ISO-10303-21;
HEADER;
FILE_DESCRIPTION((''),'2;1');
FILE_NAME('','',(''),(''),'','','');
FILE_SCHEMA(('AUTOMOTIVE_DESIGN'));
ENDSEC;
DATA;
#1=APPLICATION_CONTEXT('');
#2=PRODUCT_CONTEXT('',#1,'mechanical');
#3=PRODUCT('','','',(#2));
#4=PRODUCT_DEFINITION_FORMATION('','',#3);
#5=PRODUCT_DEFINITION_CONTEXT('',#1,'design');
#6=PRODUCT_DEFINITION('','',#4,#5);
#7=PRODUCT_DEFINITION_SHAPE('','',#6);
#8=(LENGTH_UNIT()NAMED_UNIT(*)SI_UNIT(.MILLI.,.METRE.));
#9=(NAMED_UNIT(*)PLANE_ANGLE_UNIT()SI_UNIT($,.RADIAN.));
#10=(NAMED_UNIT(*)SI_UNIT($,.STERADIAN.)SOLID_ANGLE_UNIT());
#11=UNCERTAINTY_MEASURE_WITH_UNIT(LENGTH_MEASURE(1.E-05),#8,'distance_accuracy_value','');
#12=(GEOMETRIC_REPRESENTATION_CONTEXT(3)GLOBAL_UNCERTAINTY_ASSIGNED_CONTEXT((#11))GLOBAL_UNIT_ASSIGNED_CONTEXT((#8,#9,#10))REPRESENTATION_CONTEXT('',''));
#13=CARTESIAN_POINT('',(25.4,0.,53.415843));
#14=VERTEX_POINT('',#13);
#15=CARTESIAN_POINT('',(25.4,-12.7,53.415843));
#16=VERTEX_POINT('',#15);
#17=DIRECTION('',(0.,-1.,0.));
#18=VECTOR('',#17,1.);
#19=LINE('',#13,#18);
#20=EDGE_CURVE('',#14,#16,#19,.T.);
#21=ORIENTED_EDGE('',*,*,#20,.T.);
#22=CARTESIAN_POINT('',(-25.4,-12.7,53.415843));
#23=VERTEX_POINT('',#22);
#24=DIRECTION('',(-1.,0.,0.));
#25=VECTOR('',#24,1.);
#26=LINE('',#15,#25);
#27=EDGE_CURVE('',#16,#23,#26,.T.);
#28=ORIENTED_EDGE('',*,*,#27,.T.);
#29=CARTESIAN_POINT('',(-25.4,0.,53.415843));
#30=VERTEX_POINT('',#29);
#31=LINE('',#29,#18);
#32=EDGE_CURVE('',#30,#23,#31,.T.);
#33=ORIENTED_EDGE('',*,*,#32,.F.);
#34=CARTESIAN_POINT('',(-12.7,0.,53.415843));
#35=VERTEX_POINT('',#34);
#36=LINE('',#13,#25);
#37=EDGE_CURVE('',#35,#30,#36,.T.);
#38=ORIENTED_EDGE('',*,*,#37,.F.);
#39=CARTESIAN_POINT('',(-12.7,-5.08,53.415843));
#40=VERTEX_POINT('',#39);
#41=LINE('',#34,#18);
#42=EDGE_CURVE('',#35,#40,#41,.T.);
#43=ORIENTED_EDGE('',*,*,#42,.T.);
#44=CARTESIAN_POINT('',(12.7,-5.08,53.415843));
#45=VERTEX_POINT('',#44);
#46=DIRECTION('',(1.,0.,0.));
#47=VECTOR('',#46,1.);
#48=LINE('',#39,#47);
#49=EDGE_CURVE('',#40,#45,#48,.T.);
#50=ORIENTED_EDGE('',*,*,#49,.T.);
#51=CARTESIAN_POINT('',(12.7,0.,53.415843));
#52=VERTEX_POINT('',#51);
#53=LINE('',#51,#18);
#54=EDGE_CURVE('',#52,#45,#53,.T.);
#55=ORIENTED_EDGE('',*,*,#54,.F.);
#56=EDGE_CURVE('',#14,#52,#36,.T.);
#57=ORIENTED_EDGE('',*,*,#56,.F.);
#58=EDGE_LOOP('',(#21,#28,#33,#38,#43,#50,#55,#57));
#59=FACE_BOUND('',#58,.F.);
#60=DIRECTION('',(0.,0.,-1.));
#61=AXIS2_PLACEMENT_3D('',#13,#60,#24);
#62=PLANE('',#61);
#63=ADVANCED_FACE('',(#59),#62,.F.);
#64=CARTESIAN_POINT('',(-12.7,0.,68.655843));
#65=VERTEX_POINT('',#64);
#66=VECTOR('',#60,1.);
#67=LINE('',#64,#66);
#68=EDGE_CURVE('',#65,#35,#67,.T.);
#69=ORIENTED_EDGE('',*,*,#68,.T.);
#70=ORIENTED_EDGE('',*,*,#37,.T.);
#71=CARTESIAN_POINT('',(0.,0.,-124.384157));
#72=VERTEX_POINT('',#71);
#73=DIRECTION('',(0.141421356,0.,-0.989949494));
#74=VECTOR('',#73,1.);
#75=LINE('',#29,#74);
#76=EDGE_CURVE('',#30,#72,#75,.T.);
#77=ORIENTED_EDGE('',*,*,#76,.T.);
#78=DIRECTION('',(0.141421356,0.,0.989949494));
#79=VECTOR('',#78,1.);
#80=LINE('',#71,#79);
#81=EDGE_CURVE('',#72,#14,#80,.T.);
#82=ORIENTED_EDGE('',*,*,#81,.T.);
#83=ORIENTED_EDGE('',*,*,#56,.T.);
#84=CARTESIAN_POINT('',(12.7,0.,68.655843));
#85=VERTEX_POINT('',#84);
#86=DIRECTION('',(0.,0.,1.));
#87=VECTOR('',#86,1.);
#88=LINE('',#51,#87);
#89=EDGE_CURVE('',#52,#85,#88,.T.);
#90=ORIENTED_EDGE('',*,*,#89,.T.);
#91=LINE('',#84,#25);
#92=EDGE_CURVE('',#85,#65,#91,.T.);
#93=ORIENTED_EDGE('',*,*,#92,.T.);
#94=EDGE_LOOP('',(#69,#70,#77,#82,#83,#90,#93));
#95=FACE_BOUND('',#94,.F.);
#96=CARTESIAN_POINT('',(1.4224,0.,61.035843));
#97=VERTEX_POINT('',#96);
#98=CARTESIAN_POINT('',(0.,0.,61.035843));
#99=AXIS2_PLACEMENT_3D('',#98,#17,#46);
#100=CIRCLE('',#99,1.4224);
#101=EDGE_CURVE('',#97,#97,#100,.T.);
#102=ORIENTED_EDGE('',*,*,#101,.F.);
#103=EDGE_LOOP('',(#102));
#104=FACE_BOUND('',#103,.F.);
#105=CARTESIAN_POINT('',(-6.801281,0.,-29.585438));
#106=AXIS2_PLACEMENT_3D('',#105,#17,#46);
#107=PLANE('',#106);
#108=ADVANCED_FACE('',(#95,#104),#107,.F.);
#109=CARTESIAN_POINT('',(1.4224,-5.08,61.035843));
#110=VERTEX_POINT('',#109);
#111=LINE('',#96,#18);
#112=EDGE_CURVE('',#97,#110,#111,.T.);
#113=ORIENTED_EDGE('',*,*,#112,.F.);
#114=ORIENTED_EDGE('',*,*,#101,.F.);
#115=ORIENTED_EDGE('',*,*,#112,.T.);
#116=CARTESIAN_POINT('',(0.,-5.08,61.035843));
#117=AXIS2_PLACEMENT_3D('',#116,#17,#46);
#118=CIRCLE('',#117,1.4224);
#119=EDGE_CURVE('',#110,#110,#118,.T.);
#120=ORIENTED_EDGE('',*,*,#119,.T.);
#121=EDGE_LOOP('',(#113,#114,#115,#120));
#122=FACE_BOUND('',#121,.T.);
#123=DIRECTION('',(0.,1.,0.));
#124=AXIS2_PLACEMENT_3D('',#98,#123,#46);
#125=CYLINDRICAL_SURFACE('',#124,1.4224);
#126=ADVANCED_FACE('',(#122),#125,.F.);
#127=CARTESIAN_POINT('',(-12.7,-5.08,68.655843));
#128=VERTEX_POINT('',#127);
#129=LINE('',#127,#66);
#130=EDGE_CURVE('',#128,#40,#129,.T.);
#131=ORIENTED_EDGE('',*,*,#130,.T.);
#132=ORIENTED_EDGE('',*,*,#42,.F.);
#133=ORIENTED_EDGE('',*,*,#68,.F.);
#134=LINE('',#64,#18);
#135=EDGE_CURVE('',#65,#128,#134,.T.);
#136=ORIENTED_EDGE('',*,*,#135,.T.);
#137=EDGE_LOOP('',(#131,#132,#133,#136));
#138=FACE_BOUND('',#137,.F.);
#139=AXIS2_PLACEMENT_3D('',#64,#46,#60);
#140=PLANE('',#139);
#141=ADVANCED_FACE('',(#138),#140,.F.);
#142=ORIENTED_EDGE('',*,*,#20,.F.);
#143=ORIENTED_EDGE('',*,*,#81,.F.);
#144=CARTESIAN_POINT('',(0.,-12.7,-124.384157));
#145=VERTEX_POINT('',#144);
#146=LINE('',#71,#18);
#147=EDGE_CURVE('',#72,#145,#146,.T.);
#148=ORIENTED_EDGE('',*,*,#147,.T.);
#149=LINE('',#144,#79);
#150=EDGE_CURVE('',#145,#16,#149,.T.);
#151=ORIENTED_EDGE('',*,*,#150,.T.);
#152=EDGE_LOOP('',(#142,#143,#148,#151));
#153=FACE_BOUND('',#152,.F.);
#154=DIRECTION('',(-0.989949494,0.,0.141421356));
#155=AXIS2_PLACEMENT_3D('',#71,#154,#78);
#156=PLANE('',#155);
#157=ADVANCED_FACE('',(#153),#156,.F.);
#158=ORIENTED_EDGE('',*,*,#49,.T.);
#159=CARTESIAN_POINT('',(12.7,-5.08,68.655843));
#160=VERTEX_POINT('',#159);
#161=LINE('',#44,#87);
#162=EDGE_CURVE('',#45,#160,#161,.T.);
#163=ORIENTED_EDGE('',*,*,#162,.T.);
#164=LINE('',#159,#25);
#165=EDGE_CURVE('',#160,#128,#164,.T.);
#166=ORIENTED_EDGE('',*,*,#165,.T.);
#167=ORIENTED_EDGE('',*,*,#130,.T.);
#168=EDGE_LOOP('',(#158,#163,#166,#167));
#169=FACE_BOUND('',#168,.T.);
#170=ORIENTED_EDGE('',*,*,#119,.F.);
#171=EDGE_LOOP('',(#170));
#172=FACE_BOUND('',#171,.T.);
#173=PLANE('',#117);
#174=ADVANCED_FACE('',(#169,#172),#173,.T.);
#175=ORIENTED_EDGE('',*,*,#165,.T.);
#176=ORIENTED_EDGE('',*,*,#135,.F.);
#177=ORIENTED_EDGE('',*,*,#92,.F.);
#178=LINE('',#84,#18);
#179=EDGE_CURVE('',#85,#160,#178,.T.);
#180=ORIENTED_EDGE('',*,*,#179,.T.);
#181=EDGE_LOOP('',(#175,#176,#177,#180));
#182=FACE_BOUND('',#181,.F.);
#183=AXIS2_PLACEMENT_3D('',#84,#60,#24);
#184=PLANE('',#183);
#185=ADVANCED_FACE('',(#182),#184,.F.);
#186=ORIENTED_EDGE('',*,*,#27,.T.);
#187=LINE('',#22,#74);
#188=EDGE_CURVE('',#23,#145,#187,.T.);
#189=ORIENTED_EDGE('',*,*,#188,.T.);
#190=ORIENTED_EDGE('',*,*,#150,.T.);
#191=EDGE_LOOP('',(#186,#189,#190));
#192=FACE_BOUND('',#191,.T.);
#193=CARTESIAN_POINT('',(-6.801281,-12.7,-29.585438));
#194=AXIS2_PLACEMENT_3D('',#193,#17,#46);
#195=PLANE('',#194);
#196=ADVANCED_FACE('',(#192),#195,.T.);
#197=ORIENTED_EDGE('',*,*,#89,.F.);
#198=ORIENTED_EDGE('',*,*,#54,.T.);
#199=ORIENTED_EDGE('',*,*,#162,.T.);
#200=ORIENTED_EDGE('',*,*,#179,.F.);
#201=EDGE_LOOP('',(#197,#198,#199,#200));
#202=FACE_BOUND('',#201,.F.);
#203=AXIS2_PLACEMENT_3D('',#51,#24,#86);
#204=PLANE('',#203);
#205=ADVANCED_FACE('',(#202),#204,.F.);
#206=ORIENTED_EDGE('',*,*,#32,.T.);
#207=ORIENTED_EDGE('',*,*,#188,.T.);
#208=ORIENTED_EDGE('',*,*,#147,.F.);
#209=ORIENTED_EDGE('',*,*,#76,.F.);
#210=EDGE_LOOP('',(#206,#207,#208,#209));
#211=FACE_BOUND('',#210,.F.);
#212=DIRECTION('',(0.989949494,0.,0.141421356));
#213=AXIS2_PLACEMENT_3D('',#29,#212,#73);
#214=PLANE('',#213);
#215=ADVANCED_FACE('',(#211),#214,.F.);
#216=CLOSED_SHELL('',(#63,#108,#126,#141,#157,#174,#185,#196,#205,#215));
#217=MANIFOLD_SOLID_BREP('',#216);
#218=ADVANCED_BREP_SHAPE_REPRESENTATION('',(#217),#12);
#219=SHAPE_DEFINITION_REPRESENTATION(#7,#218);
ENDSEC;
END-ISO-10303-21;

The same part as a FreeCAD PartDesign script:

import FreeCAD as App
import Part
import Sketcher
Q = App.Units.Quantity

doc = App.newDocument("Part")
params = doc.addObject("Spreadsheet::Sheet", "Params")
for row, (alias, value) in enumerate([
    ("sketch1_width", "2 in"),
    ("pad1_length", "0.5 in"),
    ("sketch2_width", "1 in"),
    ("sketch2_diameter", "0.112 in"),
    ("sketch2_height", "0.6 in"),
    ("pad2_length", "0.2 in"),
], start=1):
    params.set(f"A{row}", alias)
    params.set(f"B{row}", "=" + value)
    params.setAlias(f"B{row}", alias)

body = doc.addObject("PartDesign::Body", "Body")

# Sketch on XZ plane
sketch1 = doc.addObject("Sketcher::SketchObject", "Sketch")
body.addObject(sketch1)
sketch1.AttachmentSupport = (doc.XZ_Plane, [""])
sketch1.MapMode = "FlatFace"
sketch1.addGeometry([
    Part.LineSegment(App.Vector(-25, 53, 0), App.Vector(0, -124, 0)),
    Part.LineSegment(App.Vector(0, -124, 0), App.Vector(25, 53, 0)),
    Part.LineSegment(App.Vector(25, 53, 0), App.Vector(-25, 53, 0)),
], False)
sketch1.addConstraint([
    Sketcher.Constraint("Coincident", 0, 2, 1, 1),
    Sketcher.Constraint("Coincident", 1, 2, 2, 1),
    Sketcher.Constraint("Coincident", 2, 2, 0, 1),
    Sketcher.Constraint("Horizontal", 2),
    Sketcher.Constraint("PointOnObject", 0, 2, -2),
    Sketcher.Constraint("Equal", 0, 1),
    Sketcher.Constraint("DistanceX", 2, 2, 2, 1, Q("2 in")),
    Sketcher.Constraint("DistanceY", 0, 2, 1, 2, Q("7 in")),
    Sketcher.Constraint("DistanceY", 0, 2, -1, 1, 124.384157),
])
sketch1.setExpression("Constraints[6]", "Params.sketch1_width")
pad1 = doc.addObject("PartDesign::Pad", "Pad")
body.addObject(pad1)
pad1.Profile = sketch1
pad1.setExpression("Length", "Params.pad1_length")

# Sketch on XZ plane
sketch2 = doc.addObject("Sketcher::SketchObject", "Sketch001")
body.addObject(sketch2)
sketch2.AttachmentSupport = (doc.XZ_Plane, [""])
sketch2.MapMode = "FlatFace"
sketch2.addGeometry([
    Part.LineSegment(App.Vector(-12.7, 53.4, 0), App.Vector(12.7, 53.4, 0)),  # 0
    Part.LineSegment(App.Vector(12.7, 53.4, 0), App.Vector(12.7, 68.7, 0)),  # 1
    Part.LineSegment(App.Vector(12.7, 68.7, 0), App.Vector(-12.7, 68.7, 0)),  # 2
    Part.LineSegment(App.Vector(-12.7, 68.7, 0), App.Vector(-12.7, 53.4, 0)),  # 3
    Part.Circle(App.Vector(0, 61, 0), App.Vector(0, 0, 1), 1.4),  # 4
], False)
sketch2.addConstraint([
    Sketcher.Constraint("Coincident", 0, 2, 1, 1),
    Sketcher.Constraint("Coincident", 1, 2, 2, 1),
    Sketcher.Constraint("Coincident", 2, 2, 3, 1),
    Sketcher.Constraint("Coincident", 3, 2, 0, 1),
    Sketcher.Constraint("Horizontal", 0),
    Sketcher.Constraint("Vertical", 1),
    Sketcher.Constraint("Horizontal", 2),
    Sketcher.Constraint("Vertical", 3),
    Sketcher.Constraint("PointOnObject", 4, 3, -2),
    Sketcher.Constraint("DistanceX", 0, 1, 0, 2, Q("1 in")),
    Sketcher.Constraint("Diameter", 4, Q("0.112 in")),
    Sketcher.Constraint("DistanceY", 1, 1, 1, 2, Q("0.6 in")),
    Sketcher.Constraint("DistanceX", -1, 1, 0, 2, Q("0.5 in")),
    Sketcher.Constraint("DistanceY", 0, 2, 4, 3, Q("0.3 in")),
    Sketcher.Constraint("DistanceY", -1, 1, 4, 3, 61.035843),
])
sketch2.setExpression("Constraints[9]", "Params.sketch2_width")
sketch2.setExpression("Constraints[10]", "Params.sketch2_diameter")
sketch2.setExpression("Constraints[11]", "Params.sketch2_height")
pad2 = doc.addObject("PartDesign::Pad", "Pad001")
body.addObject(pad2)
pad2.Profile = sketch2
pad2.setExpression("Length", "Params.pad2_length")

doc.recompute()
